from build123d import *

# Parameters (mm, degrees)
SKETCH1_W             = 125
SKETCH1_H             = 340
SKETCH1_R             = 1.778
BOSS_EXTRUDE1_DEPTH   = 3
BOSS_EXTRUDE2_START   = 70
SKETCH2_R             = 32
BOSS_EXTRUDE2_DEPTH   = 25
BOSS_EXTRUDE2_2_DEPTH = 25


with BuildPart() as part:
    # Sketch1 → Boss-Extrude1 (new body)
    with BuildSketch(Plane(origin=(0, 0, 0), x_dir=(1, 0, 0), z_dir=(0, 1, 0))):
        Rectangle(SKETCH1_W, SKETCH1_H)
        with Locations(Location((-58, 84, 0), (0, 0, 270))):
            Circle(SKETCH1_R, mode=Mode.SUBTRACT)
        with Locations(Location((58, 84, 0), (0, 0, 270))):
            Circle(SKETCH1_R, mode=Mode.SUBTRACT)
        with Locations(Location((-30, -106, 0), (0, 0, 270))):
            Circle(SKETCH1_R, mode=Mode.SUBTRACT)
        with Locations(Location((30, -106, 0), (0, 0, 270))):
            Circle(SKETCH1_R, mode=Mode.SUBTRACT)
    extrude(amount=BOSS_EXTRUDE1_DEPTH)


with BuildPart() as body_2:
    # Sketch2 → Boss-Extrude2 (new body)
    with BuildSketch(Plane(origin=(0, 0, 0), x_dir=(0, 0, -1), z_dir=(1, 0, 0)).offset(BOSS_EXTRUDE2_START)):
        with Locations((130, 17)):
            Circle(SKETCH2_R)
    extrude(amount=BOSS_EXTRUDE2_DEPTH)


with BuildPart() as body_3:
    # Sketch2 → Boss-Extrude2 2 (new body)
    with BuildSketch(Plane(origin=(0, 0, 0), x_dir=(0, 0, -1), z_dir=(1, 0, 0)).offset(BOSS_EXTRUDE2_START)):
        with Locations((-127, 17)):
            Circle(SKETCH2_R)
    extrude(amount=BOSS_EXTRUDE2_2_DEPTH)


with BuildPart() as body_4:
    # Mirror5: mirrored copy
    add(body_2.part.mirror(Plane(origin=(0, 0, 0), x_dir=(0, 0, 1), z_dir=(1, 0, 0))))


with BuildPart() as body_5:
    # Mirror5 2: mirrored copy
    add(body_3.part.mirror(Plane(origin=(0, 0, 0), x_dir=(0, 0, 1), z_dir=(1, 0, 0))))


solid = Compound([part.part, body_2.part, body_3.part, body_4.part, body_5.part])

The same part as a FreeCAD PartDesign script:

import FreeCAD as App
import Part
import Sketcher

V = App.Vector
Q = App.Units.Quantity


def add_polygon(sketch, points):
    """Adds a closed chain of lines whose ends are joined by coincident constraints."""
    first, n = sketch.GeometryCount, len(points)
    for a, b in zip(points, points[1:] + points[:1]):
        sketch.addGeometry(Part.LineSegment(App.Vector(*a, 0), App.Vector(*b, 0)), False)
    for i in range(n):
        sketch.addConstraint(Sketcher.Constraint("Coincident", first + i, 2, first + (i + 1) % n, 1))

doc = App.newDocument("Part")
body = doc.addObject("PartDesign::Body", "Body")

# Sketch on XZ plane
sketch1 = doc.addObject("Sketcher::SketchObject", "Sketch")
body.addObject(sketch1)
sketch1.AttachmentSupport = (doc.XZ_Plane, [""])
sketch1.MapMode = "FlatFace"
add_polygon(sketch1, [(-62.5, -170), (-62.5, 170), (62.5, 170), (62.5, -170)])  # lines 0-3
sketch1.addGeometry(Part.Circle(V(-30, 106, 0), V(0, 0, 1), 1.778), False)  # 4
sketch1.addGeometry(Part.Circle(V(30, 106, 0), V(0, 0, 1), 1.778), False)  # 5
sketch1.addGeometry(Part.Circle(V(-58, -84, 0), V(0, 0, 1), 1.778), False)  # 6
sketch1.addGeometry(Part.Circle(V(58, -84, 0), V(0, 0, 1), 1.778), False)  # 7
sketch1.addConstraint(Sketcher.Constraint("Vertical", 0))
sketch1.addConstraint(Sketcher.Constraint("Horizontal", 1))
sketch1.addConstraint(Sketcher.Constraint("Vertical", 2))
sketch1.addConstraint(Sketcher.Constraint("Horizontal", 3))
sketch1.addConstraint(Sketcher.Constraint("Equal", 4, 5))
sketch1.addConstraint(Sketcher.Constraint("Equal", 5, 6))
sketch1.addConstraint(Sketcher.Constraint("Equal", 6, 7))
sketch1.addConstraint(Sketcher.Constraint("Symmetric", 0, 2, 2, 2, -1, 1))
sketch1.addConstraint(Sketcher.Constraint("Symmetric", 4, 3, 5, 3, -2))
sketch1.addConstraint(Sketcher.Constraint("Symmetric", 6, 3, 7, 3, -2))
sketch1.addConstraint(Sketcher.Constraint("DistanceX", 1, 1, 1, 2, Q("125 mm")))
sketch1.addConstraint(Sketcher.Constraint("DistanceY", 0, 1, 0, 2, Q("340 mm")))
sketch1.addConstraint(Sketcher.Constraint("Diameter", 4, Q("3.556 mm")))
sketch1.addConstraint(Sketcher.Constraint("DistanceX", 4, 3, -1, 1, Q("30 mm")))
sketch1.addConstraint(Sketcher.Constraint("DistanceY", -1, 1, 4, 3, Q("106 mm")))
sketch1.addConstraint(Sketcher.Constraint("DistanceX", 6, 3, -1, 1, Q("58 mm")))
sketch1.addConstraint(Sketcher.Constraint("DistanceY", 6, 3, -1, 1, Q("84 mm")))
pad1 = doc.addObject("PartDesign::Pad", "Pad")
body.addObject(pad1)
pad1.Profile = sketch1
pad1.Length = 3
pad1.Reversed = True
body2 = doc.addObject("PartDesign::Body", "Body001")

# Sketch on YZ plane
sketch2 = doc.addObject("Sketcher::SketchObject", "Sketch001")
body2.addObject(sketch2)
sketch2.AttachmentSupport = (doc.getObject("YZ_Plane001"), [""])
sketch2.MapMode = "FlatFace"
sketch2.AttachmentOffset = App.Placement(V(0, 0, 70), App.Rotation())
sketch2.addGeometry(Part.Circle(V(17, -130, 0), V(0, 0, 1), 32), False)
sketch2.addConstraint(Sketcher.Constraint("Diameter", 0, Q("64 mm")))
sketch2.addConstraint(Sketcher.Constraint("DistanceX", -1, 1, 0, 3, Q("17 mm")))
sketch2.addConstraint(Sketcher.Constraint("DistanceY", 0, 3, -1, 1, Q("130 mm")))
pad2 = doc.addObject("PartDesign::Pad", "Pad001")
body2.addObject(pad2)
pad2.Profile = sketch2
pad2.Length = 25
body3 = doc.addObject("PartDesign::Body", "Body002")

# Sketch on YZ plane
sketch3 = doc.addObject("Sketcher::SketchObject", "Sketch002")
body3.addObject(sketch3)
sketch3.AttachmentSupport = (doc.getObject("YZ_Plane002"), [""])
sketch3.MapMode = "FlatFace"
sketch3.AttachmentOffset = App.Placement(V(0, 0, 70), App.Rotation())
sketch3.addGeometry(Part.Circle(V(17, 127, 0), V(0, 0, 1), 32), False)
sketch3.addConstraint(Sketcher.Constraint("Diameter", 0, Q("64 mm")))
sketch3.addConstraint(Sketcher.Constraint("DistanceX", -1, 1, 0, 3, Q("17 mm")))
sketch3.addConstraint(Sketcher.Constraint("DistanceY", -1, 1, 0, 3, Q("127 mm")))
pad3 = doc.addObject("PartDesign::Pad", "Pad002")
body3.addObject(pad3)
pad3.Profile = sketch3
pad3.Length = 25
body4 = doc.addObject("PartDesign::Body", "Body003")
doc.recompute()

mirroring = doc.addObject("Part::Mirroring", "Mirroring")
mirroring.Source = body2
mirroring.Base = V(0, 0, 0)
mirroring.Normal = V(1, 0, 0)
body4.BaseFeature = mirroring
doc.recompute()
body5 = doc.addObject("PartDesign::Body", "Body004")
doc.recompute()

mirroring2 = doc.addObject("Part::Mirroring", "Mirroring001")
mirroring2.Source = body3
mirroring2.Base = V(0, 0, 0)
mirroring2.Normal = V(1, 0, 0)
body5.BaseFeature = mirroring2
doc.recompute()
mirroring.Visibility = False
mirroring2.Visibility = False

doc.recompute()
